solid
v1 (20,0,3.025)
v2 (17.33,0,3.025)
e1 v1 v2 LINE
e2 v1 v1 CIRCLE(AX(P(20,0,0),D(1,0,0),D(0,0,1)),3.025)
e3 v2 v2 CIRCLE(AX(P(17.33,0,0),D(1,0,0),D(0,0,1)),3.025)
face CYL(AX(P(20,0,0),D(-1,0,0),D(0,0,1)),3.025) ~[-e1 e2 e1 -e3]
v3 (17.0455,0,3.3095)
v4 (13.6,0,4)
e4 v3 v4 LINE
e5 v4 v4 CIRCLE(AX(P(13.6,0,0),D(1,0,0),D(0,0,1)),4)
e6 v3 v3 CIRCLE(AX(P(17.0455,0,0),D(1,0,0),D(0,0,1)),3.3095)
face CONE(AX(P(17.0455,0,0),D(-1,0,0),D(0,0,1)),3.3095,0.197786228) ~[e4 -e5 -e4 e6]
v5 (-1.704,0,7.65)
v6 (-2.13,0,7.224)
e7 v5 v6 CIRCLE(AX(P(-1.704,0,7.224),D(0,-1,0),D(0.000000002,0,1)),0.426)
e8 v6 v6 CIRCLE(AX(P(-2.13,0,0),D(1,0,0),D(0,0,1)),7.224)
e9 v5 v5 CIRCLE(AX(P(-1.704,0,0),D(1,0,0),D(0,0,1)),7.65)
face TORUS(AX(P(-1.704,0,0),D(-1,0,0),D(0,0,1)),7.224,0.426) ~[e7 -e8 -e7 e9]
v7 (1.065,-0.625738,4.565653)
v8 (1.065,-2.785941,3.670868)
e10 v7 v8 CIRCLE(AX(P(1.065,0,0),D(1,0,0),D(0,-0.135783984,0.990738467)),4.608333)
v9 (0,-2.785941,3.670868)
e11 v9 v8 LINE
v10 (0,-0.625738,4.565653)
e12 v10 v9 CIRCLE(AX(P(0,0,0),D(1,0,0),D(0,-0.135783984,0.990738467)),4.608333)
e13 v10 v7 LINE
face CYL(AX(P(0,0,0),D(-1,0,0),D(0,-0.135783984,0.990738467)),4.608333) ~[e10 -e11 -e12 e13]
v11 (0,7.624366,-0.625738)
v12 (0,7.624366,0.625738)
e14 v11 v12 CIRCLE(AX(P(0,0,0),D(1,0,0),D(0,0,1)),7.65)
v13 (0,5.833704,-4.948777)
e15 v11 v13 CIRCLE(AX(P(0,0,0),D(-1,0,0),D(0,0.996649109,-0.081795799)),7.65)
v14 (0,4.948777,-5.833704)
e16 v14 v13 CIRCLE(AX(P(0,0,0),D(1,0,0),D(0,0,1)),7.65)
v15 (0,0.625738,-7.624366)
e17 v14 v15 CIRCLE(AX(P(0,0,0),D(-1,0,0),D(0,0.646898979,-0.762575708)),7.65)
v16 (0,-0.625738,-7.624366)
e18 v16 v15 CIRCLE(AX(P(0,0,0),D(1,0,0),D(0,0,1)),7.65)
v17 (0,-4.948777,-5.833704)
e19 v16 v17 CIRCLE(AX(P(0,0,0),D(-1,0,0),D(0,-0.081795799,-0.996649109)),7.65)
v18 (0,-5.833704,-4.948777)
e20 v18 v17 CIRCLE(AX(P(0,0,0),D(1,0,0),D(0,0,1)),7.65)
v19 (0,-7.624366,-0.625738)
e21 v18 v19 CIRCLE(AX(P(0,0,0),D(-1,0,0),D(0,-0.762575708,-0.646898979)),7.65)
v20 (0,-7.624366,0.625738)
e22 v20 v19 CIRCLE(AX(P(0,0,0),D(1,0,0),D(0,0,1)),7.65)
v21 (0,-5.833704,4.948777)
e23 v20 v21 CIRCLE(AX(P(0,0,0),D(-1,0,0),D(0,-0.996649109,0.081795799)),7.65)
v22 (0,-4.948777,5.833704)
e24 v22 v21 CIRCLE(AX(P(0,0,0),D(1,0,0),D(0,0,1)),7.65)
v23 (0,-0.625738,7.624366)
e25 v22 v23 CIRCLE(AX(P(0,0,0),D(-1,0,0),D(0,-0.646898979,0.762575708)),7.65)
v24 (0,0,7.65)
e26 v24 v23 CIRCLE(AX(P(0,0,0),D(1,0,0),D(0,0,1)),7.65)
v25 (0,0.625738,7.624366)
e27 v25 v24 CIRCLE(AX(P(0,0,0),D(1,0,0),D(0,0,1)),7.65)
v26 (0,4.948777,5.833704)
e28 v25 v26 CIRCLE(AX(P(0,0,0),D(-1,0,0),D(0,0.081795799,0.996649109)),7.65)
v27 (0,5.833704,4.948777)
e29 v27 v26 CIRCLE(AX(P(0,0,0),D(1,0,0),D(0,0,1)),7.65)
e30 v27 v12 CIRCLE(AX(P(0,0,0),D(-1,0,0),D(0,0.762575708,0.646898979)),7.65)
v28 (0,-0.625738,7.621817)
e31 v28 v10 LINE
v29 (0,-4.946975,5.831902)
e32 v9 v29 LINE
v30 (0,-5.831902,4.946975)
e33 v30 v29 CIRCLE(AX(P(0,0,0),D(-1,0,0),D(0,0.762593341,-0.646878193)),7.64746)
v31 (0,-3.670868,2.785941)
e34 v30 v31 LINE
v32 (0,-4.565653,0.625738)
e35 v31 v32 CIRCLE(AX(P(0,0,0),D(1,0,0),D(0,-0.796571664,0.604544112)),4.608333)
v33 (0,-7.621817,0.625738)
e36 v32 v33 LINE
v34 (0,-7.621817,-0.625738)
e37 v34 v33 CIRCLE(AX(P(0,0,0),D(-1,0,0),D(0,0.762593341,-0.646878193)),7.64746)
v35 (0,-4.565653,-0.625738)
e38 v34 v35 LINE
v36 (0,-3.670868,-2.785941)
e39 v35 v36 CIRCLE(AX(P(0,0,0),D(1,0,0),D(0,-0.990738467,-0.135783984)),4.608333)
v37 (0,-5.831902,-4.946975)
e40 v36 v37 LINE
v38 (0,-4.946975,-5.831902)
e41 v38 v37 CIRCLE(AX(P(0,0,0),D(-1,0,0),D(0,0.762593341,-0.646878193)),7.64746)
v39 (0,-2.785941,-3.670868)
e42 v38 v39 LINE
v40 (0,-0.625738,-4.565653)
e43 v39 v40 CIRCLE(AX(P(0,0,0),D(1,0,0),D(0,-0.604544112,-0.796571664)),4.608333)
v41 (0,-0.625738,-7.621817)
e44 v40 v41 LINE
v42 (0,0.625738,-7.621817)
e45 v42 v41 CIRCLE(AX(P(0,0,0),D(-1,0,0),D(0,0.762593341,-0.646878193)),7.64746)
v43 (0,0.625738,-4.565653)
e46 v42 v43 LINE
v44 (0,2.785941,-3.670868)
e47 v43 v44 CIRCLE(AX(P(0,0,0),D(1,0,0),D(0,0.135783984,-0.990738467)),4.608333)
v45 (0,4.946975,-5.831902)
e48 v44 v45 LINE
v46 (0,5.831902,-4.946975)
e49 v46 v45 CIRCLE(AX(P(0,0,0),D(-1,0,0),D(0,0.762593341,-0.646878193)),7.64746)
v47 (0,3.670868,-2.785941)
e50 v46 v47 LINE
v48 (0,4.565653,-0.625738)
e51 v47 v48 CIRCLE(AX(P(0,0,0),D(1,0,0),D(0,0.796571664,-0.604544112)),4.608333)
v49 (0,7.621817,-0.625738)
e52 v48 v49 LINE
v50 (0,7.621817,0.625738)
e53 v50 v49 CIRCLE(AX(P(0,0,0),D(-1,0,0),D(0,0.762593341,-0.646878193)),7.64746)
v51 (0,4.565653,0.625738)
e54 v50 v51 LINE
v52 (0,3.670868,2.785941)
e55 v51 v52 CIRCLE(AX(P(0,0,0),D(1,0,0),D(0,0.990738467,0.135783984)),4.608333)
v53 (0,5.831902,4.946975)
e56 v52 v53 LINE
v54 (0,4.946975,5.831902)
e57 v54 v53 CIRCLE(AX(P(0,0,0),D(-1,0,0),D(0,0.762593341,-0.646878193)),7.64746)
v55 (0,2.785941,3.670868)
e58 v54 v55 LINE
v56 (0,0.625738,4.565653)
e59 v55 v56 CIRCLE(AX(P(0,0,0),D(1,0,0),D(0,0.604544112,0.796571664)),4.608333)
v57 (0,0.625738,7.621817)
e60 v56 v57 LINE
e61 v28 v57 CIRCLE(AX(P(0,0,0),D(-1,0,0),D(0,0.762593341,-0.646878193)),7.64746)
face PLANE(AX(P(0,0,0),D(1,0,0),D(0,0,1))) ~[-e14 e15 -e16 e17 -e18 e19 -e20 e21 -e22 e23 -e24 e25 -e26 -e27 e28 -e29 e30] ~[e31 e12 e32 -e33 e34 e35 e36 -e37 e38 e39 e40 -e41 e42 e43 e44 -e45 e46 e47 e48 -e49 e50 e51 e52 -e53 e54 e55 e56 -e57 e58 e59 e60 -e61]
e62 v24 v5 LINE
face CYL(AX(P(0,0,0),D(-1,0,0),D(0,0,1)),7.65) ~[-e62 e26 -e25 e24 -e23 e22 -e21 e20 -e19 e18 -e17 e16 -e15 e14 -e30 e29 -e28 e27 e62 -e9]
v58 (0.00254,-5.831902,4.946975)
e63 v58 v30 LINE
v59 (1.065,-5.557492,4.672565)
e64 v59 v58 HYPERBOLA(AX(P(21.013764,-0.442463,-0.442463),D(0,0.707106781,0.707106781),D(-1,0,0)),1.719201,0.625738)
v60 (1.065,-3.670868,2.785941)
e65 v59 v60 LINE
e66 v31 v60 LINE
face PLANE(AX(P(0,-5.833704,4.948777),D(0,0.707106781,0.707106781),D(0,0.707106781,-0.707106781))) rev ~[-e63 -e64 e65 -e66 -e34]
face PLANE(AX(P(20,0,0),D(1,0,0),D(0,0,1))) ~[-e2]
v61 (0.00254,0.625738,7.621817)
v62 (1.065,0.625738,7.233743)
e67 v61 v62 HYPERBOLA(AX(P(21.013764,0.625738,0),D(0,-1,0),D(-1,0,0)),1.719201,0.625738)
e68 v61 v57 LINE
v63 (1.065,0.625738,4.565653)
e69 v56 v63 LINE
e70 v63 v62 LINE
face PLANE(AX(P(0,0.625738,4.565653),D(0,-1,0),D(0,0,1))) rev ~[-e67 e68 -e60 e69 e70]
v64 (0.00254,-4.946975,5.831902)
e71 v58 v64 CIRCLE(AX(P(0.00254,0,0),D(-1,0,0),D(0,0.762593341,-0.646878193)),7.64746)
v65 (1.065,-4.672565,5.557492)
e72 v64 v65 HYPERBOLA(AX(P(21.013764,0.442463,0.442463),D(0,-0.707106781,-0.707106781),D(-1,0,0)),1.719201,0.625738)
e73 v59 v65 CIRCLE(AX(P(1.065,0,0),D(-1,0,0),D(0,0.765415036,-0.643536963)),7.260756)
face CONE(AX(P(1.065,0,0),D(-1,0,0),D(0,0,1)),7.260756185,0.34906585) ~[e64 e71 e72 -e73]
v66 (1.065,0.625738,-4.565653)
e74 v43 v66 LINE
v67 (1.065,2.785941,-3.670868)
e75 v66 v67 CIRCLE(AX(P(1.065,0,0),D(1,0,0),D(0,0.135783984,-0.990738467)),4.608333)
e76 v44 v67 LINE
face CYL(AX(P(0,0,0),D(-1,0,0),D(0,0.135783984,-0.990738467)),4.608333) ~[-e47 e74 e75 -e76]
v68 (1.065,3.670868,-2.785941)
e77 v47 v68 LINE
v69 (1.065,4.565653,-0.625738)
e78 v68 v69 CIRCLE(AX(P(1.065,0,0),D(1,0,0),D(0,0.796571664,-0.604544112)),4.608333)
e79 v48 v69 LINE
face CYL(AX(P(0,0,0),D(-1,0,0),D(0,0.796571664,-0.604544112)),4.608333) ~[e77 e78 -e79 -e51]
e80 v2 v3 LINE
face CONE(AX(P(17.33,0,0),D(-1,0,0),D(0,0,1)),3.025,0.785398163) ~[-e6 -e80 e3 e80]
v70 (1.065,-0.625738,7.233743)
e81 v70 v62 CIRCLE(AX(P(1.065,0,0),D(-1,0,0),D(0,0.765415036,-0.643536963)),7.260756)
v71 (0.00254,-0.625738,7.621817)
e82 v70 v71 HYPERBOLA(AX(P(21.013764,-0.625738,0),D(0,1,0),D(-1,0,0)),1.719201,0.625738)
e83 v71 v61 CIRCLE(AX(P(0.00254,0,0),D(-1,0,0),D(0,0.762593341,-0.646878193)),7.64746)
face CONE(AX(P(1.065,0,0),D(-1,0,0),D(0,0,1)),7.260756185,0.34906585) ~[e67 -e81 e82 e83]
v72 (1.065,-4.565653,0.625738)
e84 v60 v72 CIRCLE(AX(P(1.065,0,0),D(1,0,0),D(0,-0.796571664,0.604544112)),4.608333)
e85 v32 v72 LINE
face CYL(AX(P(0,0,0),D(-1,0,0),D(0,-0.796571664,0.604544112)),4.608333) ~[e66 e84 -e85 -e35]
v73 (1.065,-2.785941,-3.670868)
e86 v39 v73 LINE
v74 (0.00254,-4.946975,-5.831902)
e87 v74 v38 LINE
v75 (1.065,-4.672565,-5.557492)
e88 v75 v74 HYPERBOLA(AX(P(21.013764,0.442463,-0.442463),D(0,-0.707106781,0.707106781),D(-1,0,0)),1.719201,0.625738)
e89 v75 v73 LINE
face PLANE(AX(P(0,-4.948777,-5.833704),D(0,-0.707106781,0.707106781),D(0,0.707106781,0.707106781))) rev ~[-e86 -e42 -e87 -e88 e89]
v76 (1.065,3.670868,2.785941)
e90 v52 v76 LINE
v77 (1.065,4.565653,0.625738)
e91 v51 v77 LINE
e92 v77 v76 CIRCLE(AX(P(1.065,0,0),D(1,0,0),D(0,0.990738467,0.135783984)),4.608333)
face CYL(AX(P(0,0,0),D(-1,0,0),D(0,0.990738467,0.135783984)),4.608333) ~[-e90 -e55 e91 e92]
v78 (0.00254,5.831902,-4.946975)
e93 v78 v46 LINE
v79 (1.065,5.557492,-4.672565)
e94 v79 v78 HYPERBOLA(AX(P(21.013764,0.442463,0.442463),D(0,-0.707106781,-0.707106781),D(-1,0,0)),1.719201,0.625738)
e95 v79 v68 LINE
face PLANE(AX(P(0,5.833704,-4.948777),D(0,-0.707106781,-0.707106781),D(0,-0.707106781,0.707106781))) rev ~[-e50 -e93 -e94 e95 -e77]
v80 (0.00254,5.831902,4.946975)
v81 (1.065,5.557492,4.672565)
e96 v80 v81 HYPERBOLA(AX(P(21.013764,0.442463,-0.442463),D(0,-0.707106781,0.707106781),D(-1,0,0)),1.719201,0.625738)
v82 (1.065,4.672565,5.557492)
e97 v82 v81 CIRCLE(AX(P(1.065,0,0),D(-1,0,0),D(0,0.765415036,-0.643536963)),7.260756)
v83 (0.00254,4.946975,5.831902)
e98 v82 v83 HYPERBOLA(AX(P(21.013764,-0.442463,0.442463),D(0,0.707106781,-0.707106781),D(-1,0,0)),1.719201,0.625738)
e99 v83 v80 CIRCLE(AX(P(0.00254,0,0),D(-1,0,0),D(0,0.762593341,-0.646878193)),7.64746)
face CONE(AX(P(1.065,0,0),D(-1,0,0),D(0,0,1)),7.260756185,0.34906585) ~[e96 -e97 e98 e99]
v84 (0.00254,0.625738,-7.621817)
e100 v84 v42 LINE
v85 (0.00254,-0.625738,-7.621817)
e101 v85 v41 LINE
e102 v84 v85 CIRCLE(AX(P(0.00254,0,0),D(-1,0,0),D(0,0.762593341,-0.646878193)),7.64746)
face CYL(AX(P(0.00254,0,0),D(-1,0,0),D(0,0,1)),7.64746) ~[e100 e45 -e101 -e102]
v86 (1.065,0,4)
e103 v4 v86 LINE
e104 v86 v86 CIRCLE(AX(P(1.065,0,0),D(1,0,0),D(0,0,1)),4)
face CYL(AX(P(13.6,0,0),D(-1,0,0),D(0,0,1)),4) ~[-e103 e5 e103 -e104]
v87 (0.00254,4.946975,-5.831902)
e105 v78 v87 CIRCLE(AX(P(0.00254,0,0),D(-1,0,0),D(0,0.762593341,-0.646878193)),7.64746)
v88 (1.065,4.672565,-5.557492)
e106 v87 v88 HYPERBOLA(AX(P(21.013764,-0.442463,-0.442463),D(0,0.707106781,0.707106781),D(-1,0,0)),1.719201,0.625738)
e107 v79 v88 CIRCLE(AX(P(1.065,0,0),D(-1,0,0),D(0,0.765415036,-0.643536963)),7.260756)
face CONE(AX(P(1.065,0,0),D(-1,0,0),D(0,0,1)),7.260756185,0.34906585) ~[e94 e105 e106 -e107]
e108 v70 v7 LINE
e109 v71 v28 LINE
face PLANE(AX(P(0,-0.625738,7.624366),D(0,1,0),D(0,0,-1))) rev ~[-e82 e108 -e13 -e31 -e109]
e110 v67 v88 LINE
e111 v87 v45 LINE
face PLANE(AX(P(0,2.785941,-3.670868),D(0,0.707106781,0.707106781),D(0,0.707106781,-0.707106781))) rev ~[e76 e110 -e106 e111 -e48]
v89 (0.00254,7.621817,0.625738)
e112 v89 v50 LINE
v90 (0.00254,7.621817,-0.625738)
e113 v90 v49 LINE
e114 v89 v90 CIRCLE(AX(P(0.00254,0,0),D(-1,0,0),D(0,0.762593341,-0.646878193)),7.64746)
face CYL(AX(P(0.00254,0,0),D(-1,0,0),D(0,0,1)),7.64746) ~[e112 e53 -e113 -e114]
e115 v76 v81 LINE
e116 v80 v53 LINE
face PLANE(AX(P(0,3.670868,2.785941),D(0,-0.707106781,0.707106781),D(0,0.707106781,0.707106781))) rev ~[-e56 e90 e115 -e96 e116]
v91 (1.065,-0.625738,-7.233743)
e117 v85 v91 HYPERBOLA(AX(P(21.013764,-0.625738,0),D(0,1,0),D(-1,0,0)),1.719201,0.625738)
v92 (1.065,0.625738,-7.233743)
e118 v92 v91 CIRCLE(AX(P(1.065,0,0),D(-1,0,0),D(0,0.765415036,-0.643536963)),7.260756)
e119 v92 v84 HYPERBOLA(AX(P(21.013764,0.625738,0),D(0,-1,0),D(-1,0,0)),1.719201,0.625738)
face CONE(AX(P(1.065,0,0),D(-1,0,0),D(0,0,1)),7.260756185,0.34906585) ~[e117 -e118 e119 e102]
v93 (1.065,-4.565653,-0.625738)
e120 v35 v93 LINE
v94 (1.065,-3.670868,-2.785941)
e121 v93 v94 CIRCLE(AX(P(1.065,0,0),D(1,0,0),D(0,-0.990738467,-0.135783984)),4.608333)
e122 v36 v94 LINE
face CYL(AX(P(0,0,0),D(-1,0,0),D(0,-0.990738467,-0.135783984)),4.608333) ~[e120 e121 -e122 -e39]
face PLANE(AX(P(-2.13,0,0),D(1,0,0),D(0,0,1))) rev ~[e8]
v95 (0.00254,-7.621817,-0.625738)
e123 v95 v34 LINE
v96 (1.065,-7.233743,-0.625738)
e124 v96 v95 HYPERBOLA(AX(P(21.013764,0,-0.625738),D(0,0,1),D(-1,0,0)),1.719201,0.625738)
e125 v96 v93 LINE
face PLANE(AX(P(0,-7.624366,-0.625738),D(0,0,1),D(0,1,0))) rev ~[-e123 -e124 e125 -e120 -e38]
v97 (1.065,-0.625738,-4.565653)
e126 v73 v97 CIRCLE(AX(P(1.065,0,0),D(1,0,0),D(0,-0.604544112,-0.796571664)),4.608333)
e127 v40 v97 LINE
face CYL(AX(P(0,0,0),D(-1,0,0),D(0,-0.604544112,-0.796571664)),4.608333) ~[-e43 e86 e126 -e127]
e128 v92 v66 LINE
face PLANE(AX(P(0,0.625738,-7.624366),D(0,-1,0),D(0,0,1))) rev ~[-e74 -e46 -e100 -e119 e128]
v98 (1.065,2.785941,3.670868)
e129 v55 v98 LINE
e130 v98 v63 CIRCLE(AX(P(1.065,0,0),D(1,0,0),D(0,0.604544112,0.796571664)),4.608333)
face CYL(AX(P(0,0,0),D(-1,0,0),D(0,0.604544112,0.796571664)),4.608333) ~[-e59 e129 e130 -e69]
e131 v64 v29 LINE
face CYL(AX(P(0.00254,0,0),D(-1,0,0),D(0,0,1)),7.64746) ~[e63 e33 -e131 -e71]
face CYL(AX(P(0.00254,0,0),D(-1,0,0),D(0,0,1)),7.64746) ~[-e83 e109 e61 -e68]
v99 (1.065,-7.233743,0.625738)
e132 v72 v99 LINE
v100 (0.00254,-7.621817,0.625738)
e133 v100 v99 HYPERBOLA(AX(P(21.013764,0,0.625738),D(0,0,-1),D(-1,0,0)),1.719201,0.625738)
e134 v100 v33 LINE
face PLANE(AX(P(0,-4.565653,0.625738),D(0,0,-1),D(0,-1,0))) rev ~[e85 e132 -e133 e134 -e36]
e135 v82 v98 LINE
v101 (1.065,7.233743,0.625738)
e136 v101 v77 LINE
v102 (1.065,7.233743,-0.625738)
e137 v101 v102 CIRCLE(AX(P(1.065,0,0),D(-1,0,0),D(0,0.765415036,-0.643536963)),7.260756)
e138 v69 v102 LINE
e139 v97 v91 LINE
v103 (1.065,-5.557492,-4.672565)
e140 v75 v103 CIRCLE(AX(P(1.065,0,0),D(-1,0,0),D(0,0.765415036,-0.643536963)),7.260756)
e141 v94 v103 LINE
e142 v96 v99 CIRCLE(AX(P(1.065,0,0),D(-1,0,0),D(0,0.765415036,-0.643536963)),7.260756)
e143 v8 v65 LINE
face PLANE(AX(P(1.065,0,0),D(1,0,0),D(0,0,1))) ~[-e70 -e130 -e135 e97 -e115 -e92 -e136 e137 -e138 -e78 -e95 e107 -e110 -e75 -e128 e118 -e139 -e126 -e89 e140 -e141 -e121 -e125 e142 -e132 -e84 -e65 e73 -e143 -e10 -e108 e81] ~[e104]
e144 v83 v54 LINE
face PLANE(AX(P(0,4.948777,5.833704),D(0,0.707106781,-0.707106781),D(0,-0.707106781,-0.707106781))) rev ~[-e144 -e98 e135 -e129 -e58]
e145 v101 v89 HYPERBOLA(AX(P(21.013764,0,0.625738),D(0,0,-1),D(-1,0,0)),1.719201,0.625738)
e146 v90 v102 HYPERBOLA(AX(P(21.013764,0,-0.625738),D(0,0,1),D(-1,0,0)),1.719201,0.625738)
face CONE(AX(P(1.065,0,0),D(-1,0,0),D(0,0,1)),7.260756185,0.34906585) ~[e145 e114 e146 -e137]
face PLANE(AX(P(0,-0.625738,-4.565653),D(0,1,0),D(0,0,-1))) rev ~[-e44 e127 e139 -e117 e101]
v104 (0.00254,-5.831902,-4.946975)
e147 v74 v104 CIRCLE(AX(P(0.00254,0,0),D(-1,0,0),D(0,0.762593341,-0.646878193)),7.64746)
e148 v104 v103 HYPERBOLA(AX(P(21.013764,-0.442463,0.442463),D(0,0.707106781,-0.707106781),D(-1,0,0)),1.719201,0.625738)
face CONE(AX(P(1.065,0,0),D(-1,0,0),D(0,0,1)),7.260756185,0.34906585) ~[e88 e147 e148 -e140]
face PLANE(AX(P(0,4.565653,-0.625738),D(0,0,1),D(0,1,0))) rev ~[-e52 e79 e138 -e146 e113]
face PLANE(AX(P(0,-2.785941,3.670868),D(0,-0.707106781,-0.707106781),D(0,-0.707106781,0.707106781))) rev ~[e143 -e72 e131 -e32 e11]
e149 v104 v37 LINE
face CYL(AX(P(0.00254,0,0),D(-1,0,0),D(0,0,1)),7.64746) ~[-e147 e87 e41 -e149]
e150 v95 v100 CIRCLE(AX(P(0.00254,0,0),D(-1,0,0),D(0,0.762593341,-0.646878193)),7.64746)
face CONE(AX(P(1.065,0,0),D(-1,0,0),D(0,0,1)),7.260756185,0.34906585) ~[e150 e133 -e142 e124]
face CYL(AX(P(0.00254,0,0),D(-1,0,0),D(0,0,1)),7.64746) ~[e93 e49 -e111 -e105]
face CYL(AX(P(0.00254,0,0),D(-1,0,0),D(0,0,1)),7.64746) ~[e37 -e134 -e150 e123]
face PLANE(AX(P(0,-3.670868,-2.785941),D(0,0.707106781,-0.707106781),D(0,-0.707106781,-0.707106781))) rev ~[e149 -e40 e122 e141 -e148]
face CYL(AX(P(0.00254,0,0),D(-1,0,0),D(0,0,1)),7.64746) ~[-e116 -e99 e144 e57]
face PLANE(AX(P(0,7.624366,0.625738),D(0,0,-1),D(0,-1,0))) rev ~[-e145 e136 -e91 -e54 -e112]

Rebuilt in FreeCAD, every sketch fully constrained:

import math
import FreeCAD as App
import Part
import Sketcher
from FreeCAD import Vector
Q = App.Units.Quantity

doc = App.newDocument("Part")
body = doc.addObject("PartDesign::Body", "Body")

sketch1 = body.newObject("Sketcher::SketchObject", "Sketch")
sketch1.AttachmentSupport = (doc.getObject("XY_Plane"), [""])
sketch1.MapMode = "FlatFace"
sketch1.addGeometry(Part.LineSegment(Vector(-2.13, 7.224, 0), Vector(-2.13, 0, 0)), False)
sketch1.addGeometry(Part.LineSegment(Vector(-2.13, 0, 0), Vector(20, 0, 0)), False)
sketch1.addGeometry(Part.LineSegment(Vector(20, 0, 0), Vector(20, 3.025, 0)), False)
sketch1.addGeometry(Part.LineSegment(Vector(20, 3.025, 0), Vector(17.33, 3.025, 0)), False)
sketch1.addGeometry(Part.LineSegment(Vector(17.33, 3.025, 0), Vector(17.0455, 3.3095, 0)), False)
sketch1.addGeometry(Part.LineSegment(Vector(17.0455, 3.3095, 0), Vector(13.6, 4, 0)), False)
sketch1.addGeometry(Part.LineSegment(Vector(13.6, 4, 0), Vector(1.065, 4, 0)), False)
sketch1.addGeometry(Part.LineSegment(Vector(1.065, 4, 0), Vector(1.065, 7.2608, 0)), False)
sketch1.addGeometry(Part.LineSegment(Vector(1.065, 7.2608, 0), Vector(0.0025, 7.6475, 0)), False)
sketch1.addGeometry(Part.LineSegment(Vector(0.0025, 7.6475, 0), Vector(0, 7.6475, 0)), False)
sketch1.addGeometry(Part.LineSegment(Vector(0, 7.6475, 0), Vector(0, 7.65, 0)), False)
sketch1.addGeometry(Part.LineSegment(Vector(0, 7.65, 0), Vector(-1.704, 7.65, 0)), False)
sketch1.addGeometry(Part.ArcOfCircle(Part.Circle(Vector(-1.704, 7.224, 0), Vector(0, 0, 1), 0.426), math.radians(90), math.radians(180)), False)
sketch1.addConstraint(Sketcher.Constraint("Coincident", 0, 2, 1, 1))
sketch1.addConstraint(Sketcher.Constraint("Coincident", 1, 2, 2, 1))
sketch1.addConstraint(Sketcher.Constraint("Coincident", 2, 2, 3, 1))
sketch1.addConstraint(Sketcher.Constraint("Coincident", 3, 2, 4, 1))
sketch1.addConstraint(Sketcher.Constraint("Coincident", 4, 2, 5, 1))
sketch1.addConstraint(Sketcher.Constraint("Coincident", 5, 2, 6, 1))
sketch1.addConstraint(Sketcher.Constraint("Coincident", 6, 2, 7, 1))
sketch1.addConstraint(Sketcher.Constraint("Coincident", 7, 2, 8, 1))
sketch1.addConstraint(Sketcher.Constraint("Coincident", 8, 2, 9, 1))
sketch1.addConstraint(Sketcher.Constraint("Coincident", 9, 2, 10, 1))
sketch1.addConstraint(Sketcher.Constraint("Coincident", 10, 2, 11, 1))
sketch1.addConstraint(Sketcher.Constraint("Tangent", 11, 2, 12, 1))
sketch1.addConstraint(Sketcher.Constraint("Tangent", 12, 2, 0, 1))
sketch1.addConstraint(Sketcher.Constraint("Vertical", 0))
sketch1.addConstraint(Sketcher.Constraint("Horizontal", 1))
sketch1.addConstraint(Sketcher.Constraint("Vertical", 2))
sketch1.addConstraint(Sketcher.Constraint("Horizontal", 3))
sketch1.addConstraint(Sketcher.Constraint("Horizontal", 6))
sketch1.addConstraint(Sketcher.Constraint("Vertical", 7))
sketch1.addConstraint(Sketcher.Constraint("Horizontal", 9))
sketch1.addConstraint(Sketcher.Constraint("Vertical", 10))
sketch1.addConstraint(Sketcher.Constraint("Horizontal", 11))
sketch1.addConstraint(Sketcher.Constraint("PointOnObject", 0, 2, -1))
sketch1.addConstraint(Sketcher.Constraint("PointOnObject", 9, 2, -2))
sketch1.addConstraint(Sketcher.Constraint("Equal", 9, 10))
sketch1.addConstraint(Sketcher.Constraint("Angle", 4, Q("135 deg")))
sketch1.addConstraint(Sketcher.Constraint("Angle", 8, Q("160 deg")))
sketch1.addConstraint(Sketcher.Constraint("DistanceX", -1, 1, 1, 2, Q("20 mm")))
sketch1.addConstraint(Sketcher.Constraint("DistanceY", -1, 1, 5, 2, Q("4 mm")))
sketch1.addConstraint(Sketcher.Constraint("Radius", 12, Q("0.426 mm")))
sketch1.addConstraint(Sketcher.Constraint("DistanceX", 1, 1, 1, 2, Q("22.13 mm")))
sketch1.addConstraint(Sketcher.Constraint("DistanceX", 3, 2, 3, 1, Q("2.67 mm")))
sketch1.addConstraint(Sketcher.Constraint("DistanceX", -1, 1, 5, 2, Q("13.6 mm")))
sketch1.addConstraint(Sketcher.Constraint("DistanceX", 6, 2, 6, 1, Q("12.535 mm")))
sketch1.addConstraint(Sketcher.Constraint("DistanceY", 0, 2, 0, 1, Q("7.224 mm")))
sketch1.addConstraint(Sketcher.Constraint("DistanceY", 2, 1, 2, 2, Q("3.025 mm")))
sketch1.addConstraint(Sketcher.Constraint("DistanceX", 9, 2, 9, 1, Q("0.00254 mm")))
sketch1.addConstraint(Sketcher.Constraint("DistanceX", -1, 1, 4, 2, Q("17.0455 mm")))
revolution = body.newObject("PartDesign::Revolution", "Revolution")
revolution.Profile = sketch1
revolution.ReferenceAxis = (sketch1, ["H_Axis"])
revolution.Angle = 360

sketch2 = body.newObject("Sketcher::SketchObject", "Sketch001")
sketch2.AttachmentSupport = (doc.getObject("YZ_Plane"), [""])
sketch2.MapMode = "FlatFace"
sketch2.addGeometry(Part.LineSegment(Vector(7.6, -0.6, 0), Vector(4.6, -0.6, 0)), False)
sketch2.addGeometry(Part.ArcOfCircle(Part.Circle(Vector(0, 0, 0), Vector(0, 0, 1), 4.6), math.radians(-37), math.radians(-8)), False)
sketch2.addGeometry(Part.LineSegment(Vector(3.7, -2.8, 0), Vector(5.8, -4.9, 0)), False)
sketch2.addGeometry(Part.ArcOfCircle(Part.Circle(Vector(0, 0, 0), Vector(0, 0, 1), 7.7), math.radians(-40), math.radians(-5)), False)
sketch2.addConstraint(Sketcher.Constraint("Coincident", 0, 2, 1, 2))
sketch2.addConstraint(Sketcher.Constraint("Coincident", 1, 1, 2, 1))
sketch2.addConstraint(Sketcher.Constraint("Coincident", 2, 2, 3, 1))
sketch2.addConstraint(Sketcher.Constraint("Coincident", 3, 2, 0, 1))
sketch2.addConstraint(Sketcher.Constraint("Horizontal", 0))
sketch2.addConstraint(Sketcher.Constraint("Coincident", 1, 3, -1, 1))
sketch2.addConstraint(Sketcher.Constraint("Coincident", 3, 3, -1, 1))
sketch2.addConstraint(Sketcher.Constraint("Angle", 2, Q("-45 deg")))
sketch2.addConstraint(Sketcher.Constraint("Radius", 3, Q("7.65 mm")))
sketch2.addConstraint(Sketcher.Constraint("Radius", 1, Q("4.608333 mm")))
sketch2.addConstraint(Sketcher.Constraint("DistanceX", 0, 2, 0, 1, Q("3.058713 mm")))
sketch2.addConstraint(Sketcher.Constraint("DistanceY", 1, 1, -1, 1, Q("2.785941 mm")))
pocket1 = body.newObject("PartDesign::Pocket", "Pocket")
pocket1.Profile = sketch2
pocket1.Length = 1.065
pocket1.Reversed = True
doc.recompute()

polarpattern = body.newObject("PartDesign::PolarPattern", "PolarPattern")
polarpattern.Originals = [pocket1]
polarpattern.Axis = (doc.getObject("X_Axis"), [""])
polarpattern.Angle = 360
polarpattern.Occurrences = 8
body.Tip = polarpattern

doc.recompute()
